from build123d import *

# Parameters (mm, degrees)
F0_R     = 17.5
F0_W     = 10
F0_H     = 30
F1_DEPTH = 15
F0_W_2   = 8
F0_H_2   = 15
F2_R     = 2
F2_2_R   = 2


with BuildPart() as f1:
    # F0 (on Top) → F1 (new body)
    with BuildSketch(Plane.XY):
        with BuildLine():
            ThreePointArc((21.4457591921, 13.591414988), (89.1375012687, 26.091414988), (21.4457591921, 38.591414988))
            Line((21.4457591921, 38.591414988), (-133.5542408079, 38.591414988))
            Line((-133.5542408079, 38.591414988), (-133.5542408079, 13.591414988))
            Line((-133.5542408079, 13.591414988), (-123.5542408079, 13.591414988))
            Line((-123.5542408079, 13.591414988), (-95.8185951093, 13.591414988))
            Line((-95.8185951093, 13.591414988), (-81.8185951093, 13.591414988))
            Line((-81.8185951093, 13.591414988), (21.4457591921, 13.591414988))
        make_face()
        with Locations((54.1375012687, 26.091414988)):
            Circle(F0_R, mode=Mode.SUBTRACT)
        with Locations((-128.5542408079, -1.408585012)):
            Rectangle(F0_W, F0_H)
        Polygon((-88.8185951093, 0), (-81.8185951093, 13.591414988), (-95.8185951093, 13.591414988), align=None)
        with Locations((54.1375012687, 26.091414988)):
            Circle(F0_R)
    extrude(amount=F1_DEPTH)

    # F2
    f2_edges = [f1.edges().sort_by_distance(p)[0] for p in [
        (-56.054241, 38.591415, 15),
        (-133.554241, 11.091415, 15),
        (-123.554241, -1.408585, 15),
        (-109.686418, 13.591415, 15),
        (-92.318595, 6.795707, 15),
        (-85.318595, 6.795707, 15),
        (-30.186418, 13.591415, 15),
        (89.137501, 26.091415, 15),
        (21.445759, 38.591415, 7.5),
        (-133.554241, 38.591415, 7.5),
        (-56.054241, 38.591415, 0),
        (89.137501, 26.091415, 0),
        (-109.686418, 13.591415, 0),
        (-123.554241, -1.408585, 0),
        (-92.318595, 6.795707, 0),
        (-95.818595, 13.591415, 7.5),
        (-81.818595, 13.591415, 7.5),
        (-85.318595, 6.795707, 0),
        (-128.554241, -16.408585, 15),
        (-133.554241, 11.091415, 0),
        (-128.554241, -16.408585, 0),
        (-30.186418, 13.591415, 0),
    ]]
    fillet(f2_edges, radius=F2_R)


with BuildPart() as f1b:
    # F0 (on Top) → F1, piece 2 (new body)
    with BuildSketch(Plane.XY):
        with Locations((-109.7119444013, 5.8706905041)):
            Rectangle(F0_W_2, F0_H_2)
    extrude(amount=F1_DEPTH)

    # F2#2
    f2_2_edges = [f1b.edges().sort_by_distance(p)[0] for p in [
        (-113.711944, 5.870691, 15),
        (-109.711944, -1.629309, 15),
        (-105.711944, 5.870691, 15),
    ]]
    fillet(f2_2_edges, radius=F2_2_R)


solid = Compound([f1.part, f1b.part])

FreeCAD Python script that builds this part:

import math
import FreeCAD as App
import Part
import Sketcher
from FreeCAD import Vector
Q = App.Units.Quantity


def edges_at(feature, points):
    """Names of the edges that pass closest to the given points."""
    edges = feature.Shape.Edges
    near = lambda p: min(range(len(edges)), key=lambda i: edges[i].distToShape(Part.Vertex(*p))[0])
    return sorted({f"Edge{near(p) + 1}" for p in points})


def add_polygon(sketch, points):
    """Adds a closed chain of lines whose ends are joined by coincident constraints."""
    first, n = sketch.GeometryCount, len(points)
    for a, b in zip(points, points[1:] + points[:1]):
        sketch.addGeometry(Part.LineSegment(App.Vector(*a, 0), App.Vector(*b, 0)), False)
    for i in range(n):
        sketch.addConstraint(Sketcher.Constraint("Coincident", first + i, 2, first + (i + 1) % n, 1))

doc = App.newDocument("Part")
body = doc.addObject("PartDesign::Body", "Body")

# Sketch on XY plane
sketch1 = body.newObject("Sketcher::SketchObject", "Sketch")
sketch1.AttachmentSupport = (doc.getObject("XY_Plane"), [""])
sketch1.MapMode = "FlatFace"
sketch1.addGeometry([
    Part.ArcOfCircle(Part.Circle(Vector(54.137501, 26.091415, 0), Vector(0, 0, 1), 35), math.radians(-159.075168), math.radians(159.075168)),  # 0
    Part.LineSegment(Vector(21.445759, 38.591415, 0), Vector(-133.554241, 38.591415, 0)),  # 1
    Part.LineSegment(Vector(-133.554241, 38.591415, 0), Vector(-133.554241, -16.408585, 0)),  # 2
    Part.LineSegment(Vector(-133.554241, -16.408585, 0), Vector(-123.554241, -16.408585, 0)),  # 3
    Part.LineSegment(Vector(-123.554241, -16.408585, 0), Vector(-123.554241, 13.591415, 0)),  # 4
    Part.LineSegment(Vector(-123.554241, 13.591415, 0), Vector(-95.818595, 13.591415, 0)),  # 5
    Part.LineSegment(Vector(-95.818595, 13.591415, 0), Vector(-88.818595, 0, 0)),  # 6
    Part.LineSegment(Vector(-88.818595, 0, 0), Vector(-81.818595, 13.591415, 0)),  # 7
    Part.LineSegment(Vector(-81.818595, 13.591415, 0), Vector(21.445759, 13.591415, 0)),  # 8
], False)
sketch1.addConstraint([
    Sketcher.Constraint("Coincident", 0, 2, 1, 1),
    Sketcher.Constraint("Coincident", 1, 2, 2, 1),
    Sketcher.Constraint("Coincident", 2, 2, 3, 1),
    Sketcher.Constraint("Coincident", 3, 2, 4, 1),
    Sketcher.Constraint("Coincident", 4, 2, 5, 1),
    Sketcher.Constraint("Coincident", 5, 2, 6, 1),
    Sketcher.Constraint("Coincident", 6, 2, 7, 1),
    Sketcher.Constraint("Coincident", 7, 2, 8, 1),
    Sketcher.Constraint("Coincident", 8, 2, 0, 1),
    Sketcher.Constraint("Horizontal", 1),
    Sketcher.Constraint("Vertical", 2),
    Sketcher.Constraint("Horizontal", 3),
    Sketcher.Constraint("Vertical", 4),
    Sketcher.Constraint("Horizontal", 5),
    Sketcher.Constraint("Horizontal", 8),
    Sketcher.Constraint("PointOnObject", 6, 2, -1),
    Sketcher.Constraint("Horizontal", 5, 2, 7, 2),
    Sketcher.Constraint("Vertical", 0, 2, 8, 2),
    Sketcher.Constraint("Equal", 6, 7),
    Sketcher.Constraint("Radius", 0, Q("35 mm")),
    Sketcher.Constraint("DistanceX", 1, 2, 1, 1, Q("155 mm")),
    Sketcher.Constraint("DistanceX", 3, 1, 3, 2, Q("10 mm")),
    Sketcher.Constraint("DistanceY", 2, 2, 2, 1, Q("55 mm")),
    Sketcher.Constraint("DistanceY", 4, 1, 4, 2, Q("30 mm")),
    Sketcher.Constraint("DistanceX", 5, 2, 6, 2, Q("7 mm")),
    Sketcher.Constraint("DistanceX", -1, 1, 0, 3, Q("54.137501 mm")),
    Sketcher.Constraint("Distance", 6, Q("15.288118 mm")),
    Sketcher.Constraint("DistanceX", 5, 1, 5, 2, Q("27.735646 mm")),
])
pad1 = body.newObject("PartDesign::Pad", "Pad")
pad1.Profile = sketch1
pad1.Length = 15
doc.recompute()

fillet = body.newObject("PartDesign::Fillet", "Fillet")
fillet.Base = (pad1, edges_at(pad1, [
    (-56.054, 38.591, 15),
    (-133.554, 11.091, 15),
    (-123.554, -1.409, 15),
    (-109.686, 13.591, 15),
    (-92.319, 6.796, 15),
    (-85.319, 6.796, 15),
    (-30.186, 13.591, 15),
    (89.138, 26.091, 15),
    (21.446, 38.591, 7.5),
    (-133.554, 38.591, 7.5),
    (-56.054, 38.591, 0),
    (89.138, 26.091, 0),
    (-109.686, 13.591, 0),
    (-123.554, -1.409, 0),
    (-92.319, 6.796, 0),
    (-95.819, 13.591, 7.5),
    (-81.819, 13.591, 7.5),
    (-85.319, 6.796, 0),
    (-128.554, -16.409, 15),
    (-133.554, 11.091, 0),
    (-128.554, -16.409, 0),
    (-30.186, 13.591, 0),
]))
fillet.Radius = 2
body2 = doc.addObject("PartDesign::Body", "Body001")

# Sketch on XY plane
sketch2 = body2.newObject("Sketcher::SketchObject", "Sketch001")
sketch2.AttachmentSupport = (doc.getObject("XY_Plane001"), [""])
sketch2.MapMode = "FlatFace"
add_polygon(sketch2, [(-113.711944, 13.370691), (-113.711944, -1.629309), (-105.711944, -1.629309), (-105.711944, 13.370691)])  # lines 0-3
sketch2.addConstraint([
    Sketcher.Constraint("Vertical", 0),
    Sketcher.Constraint("Horizontal", 1),
    Sketcher.Constraint("Vertical", 2),
    Sketcher.Constraint("Horizontal", 3),
    Sketcher.Constraint("DistanceX", 1, 1, 1, 2, Q("8 mm")),
    Sketcher.Constraint("DistanceY", 0, 2, 0, 1, Q("15 mm")),
    Sketcher.Constraint("DistanceY", 0, 2, -1, 1, Q("1.629309 mm")),
    Sketcher.Constraint("DistanceX", 0, 2, -1, 1, Q("113.711944 mm")),
])
pad2 = body2.newObject("PartDesign::Pad", "Pad001")
pad2.Profile = sketch2
pad2.Length = 15
doc.recompute()

fillet2 = body2.newObject("PartDesign::Fillet", "Fillet001")
fillet2.Base = (pad2, edges_at(pad2, [(-113.712, 5.871, 15), (-109.712, -1.629, 15), (-105.712, 5.871, 15)]))
fillet2.Radius = 2

doc.recompute()
